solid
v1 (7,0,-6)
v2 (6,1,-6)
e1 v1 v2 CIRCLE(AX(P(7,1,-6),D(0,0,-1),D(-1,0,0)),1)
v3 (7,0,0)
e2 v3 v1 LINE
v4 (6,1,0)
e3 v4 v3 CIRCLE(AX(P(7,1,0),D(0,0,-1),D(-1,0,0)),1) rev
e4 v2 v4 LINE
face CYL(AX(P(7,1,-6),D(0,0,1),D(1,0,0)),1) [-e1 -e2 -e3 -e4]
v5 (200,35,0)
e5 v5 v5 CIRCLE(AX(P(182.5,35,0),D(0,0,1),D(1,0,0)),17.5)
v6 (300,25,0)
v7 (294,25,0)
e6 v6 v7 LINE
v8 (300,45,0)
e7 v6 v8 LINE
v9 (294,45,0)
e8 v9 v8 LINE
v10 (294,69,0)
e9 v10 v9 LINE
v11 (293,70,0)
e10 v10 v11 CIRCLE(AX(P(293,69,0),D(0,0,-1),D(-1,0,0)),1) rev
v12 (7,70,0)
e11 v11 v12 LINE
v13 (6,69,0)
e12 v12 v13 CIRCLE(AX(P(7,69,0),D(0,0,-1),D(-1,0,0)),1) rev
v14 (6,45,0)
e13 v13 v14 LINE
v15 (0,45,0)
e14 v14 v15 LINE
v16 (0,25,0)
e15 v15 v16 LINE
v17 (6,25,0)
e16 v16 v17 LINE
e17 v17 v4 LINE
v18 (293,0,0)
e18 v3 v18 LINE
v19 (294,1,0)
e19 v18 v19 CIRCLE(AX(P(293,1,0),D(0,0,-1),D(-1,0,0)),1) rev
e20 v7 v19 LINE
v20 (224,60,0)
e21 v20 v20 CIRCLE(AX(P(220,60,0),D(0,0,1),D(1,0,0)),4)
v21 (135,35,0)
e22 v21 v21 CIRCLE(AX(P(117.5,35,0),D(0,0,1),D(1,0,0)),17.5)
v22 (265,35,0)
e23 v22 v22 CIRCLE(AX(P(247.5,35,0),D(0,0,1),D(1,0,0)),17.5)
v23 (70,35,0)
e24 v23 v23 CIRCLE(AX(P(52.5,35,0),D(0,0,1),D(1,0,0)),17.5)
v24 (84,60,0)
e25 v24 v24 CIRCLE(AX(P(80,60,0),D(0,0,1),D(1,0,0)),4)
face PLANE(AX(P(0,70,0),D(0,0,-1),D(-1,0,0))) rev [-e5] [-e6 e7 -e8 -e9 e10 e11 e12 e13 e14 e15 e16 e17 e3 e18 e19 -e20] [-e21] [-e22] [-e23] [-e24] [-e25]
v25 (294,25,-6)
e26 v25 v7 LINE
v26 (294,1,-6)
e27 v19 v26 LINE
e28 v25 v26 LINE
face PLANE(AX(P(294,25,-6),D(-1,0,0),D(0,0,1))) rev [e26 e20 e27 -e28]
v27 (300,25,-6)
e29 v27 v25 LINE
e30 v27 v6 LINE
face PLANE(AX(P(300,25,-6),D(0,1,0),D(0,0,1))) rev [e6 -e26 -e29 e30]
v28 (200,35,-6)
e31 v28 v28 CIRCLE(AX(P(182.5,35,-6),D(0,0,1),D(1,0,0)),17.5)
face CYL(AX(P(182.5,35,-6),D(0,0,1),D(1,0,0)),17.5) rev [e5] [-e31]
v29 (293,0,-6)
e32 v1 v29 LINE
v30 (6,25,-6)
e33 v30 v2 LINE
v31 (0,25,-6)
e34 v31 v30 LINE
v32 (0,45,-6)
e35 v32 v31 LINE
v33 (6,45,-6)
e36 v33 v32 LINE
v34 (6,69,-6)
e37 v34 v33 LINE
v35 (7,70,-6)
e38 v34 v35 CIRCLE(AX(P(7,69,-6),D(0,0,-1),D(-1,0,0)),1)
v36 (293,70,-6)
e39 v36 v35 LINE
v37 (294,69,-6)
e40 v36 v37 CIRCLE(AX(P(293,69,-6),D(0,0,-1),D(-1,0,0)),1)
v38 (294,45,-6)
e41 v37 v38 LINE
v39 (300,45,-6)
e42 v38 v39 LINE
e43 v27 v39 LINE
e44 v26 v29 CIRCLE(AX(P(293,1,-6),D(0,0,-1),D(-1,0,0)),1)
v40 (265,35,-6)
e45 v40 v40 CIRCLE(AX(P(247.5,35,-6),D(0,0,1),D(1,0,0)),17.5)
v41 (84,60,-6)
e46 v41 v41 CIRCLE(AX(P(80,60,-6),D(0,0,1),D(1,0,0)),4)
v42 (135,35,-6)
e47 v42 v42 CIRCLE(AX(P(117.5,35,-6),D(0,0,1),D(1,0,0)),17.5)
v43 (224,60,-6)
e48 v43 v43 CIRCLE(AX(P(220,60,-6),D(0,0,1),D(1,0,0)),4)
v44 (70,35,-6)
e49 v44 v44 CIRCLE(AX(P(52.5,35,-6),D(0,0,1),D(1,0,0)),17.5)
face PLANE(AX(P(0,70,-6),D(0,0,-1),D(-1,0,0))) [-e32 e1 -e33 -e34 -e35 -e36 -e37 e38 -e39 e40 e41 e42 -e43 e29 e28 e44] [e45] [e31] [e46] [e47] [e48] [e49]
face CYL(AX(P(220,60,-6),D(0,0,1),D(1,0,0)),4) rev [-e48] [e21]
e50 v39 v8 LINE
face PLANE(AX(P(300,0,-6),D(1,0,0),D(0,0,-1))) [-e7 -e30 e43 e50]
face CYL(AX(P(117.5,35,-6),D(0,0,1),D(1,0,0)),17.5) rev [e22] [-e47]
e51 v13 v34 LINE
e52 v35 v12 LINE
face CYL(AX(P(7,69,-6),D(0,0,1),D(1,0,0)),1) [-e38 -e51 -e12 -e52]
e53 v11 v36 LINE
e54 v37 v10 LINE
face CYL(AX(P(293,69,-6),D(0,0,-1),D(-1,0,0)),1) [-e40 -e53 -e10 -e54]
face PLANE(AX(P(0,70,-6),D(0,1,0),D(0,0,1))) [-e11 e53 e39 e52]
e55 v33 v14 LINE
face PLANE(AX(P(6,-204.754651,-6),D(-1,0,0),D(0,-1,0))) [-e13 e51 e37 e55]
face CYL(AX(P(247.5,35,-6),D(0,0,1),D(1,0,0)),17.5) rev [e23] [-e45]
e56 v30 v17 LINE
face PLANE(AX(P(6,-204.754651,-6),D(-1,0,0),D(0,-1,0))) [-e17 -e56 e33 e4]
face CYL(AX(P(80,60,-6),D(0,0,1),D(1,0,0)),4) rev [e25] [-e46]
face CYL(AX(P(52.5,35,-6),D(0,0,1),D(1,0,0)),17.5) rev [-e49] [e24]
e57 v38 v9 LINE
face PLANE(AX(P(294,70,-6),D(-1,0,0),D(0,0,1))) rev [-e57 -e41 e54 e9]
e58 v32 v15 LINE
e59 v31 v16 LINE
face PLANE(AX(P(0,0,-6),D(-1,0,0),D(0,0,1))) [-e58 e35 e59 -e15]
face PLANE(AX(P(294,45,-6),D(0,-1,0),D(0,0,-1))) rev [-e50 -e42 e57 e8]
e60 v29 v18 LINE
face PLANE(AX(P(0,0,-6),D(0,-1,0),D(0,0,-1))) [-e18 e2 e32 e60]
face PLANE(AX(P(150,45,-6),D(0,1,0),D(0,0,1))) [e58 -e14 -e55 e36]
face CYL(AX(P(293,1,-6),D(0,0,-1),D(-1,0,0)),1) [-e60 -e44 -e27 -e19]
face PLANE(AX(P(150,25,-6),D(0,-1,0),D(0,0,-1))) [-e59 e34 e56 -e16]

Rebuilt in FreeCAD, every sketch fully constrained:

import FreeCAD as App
import Part
import Sketcher
from FreeCAD import Vector
Q = App.Units.Quantity


def edges_at(feature, points):
    """Names of the edges that pass closest to the given points."""
    edges = feature.Shape.Edges
    near = lambda p: min(range(len(edges)), key=lambda i: edges[i].distToShape(Part.Vertex(*p))[0])
    return sorted({f"Edge{near(p) + 1}" for p in points})

doc = App.newDocument("Part")
body = doc.addObject("PartDesign::Body", "Body")

# Sketch on XY plane
sketch1 = doc.addObject("Sketcher::SketchObject", "Sketch")
body.addObject(sketch1)
sketch1.AttachmentSupport = (doc.XY_Plane, [""])
sketch1.MapMode = "FlatFace"
sketch1.addGeometry(Part.LineSegment(Vector(0, 70, 0), Vector(0, 0, 0)), False)
sketch1.addGeometry(Part.LineSegment(Vector(0, 0, 0), Vector(300, 0, 0)), False)
sketch1.addGeometry(Part.LineSegment(Vector(300, 0, 0), Vector(300, 70, 0)), False)
sketch1.addGeometry(Part.LineSegment(Vector(300, 70, 0), Vector(0, 70, 0)), False)
sketch1.addConstraint(Sketcher.Constraint("Coincident", 0, 2, 1, 1))
sketch1.addConstraint(Sketcher.Constraint("Coincident", 1, 2, 2, 1))
sketch1.addConstraint(Sketcher.Constraint("Coincident", 2, 2, 3, 1))
sketch1.addConstraint(Sketcher.Constraint("Coincident", 3, 2, 0, 1))
sketch1.addConstraint(Sketcher.Constraint("Vertical", 0))
sketch1.addConstraint(Sketcher.Constraint("Horizontal", 1))
sketch1.addConstraint(Sketcher.Constraint("Vertical", 2))
sketch1.addConstraint(Sketcher.Constraint("Horizontal", 3))
sketch1.addConstraint(Sketcher.Constraint("Coincident", 0, 2, -1, 1))
sketch1.addConstraint(Sketcher.Constraint("DistanceX", 1, 1, 1, 2, Q("300 mm")))
sketch1.addConstraint(Sketcher.Constraint("DistanceY", 0, 2, 0, 1, Q("70 mm")))
pad1 = doc.addObject("PartDesign::Pad", "Pad")
body.addObject(pad1)
pad1.Profile = sketch1
pad1.Length = 6
pad1.Reversed = True

# Sketch on XY plane
sketch2 = doc.addObject("Sketcher::SketchObject", "Sketch001")
body.addObject(sketch2)
sketch2.AttachmentSupport = (doc.XY_Plane, [""])
sketch2.MapMode = "FlatFace"
sketch2.addGeometry(Part.LineSegment(Vector(0, 70, 0), Vector(0, 45, 0)), False)
sketch2.addGeometry(Part.LineSegment(Vector(0, 45, 0), Vector(6, 45, 0)), False)
sketch2.addGeometry(Part.LineSegment(Vector(6, 45, 0), Vector(6, 70, 0)), False)
sketch2.addGeometry(Part.LineSegment(Vector(6, 70, 0), Vector(0, 70, 0)), False)
sketch2.addGeometry(Part.LineSegment(Vector(0, 25, 0), Vector(0, 0, 0)), False)
sketch2.addGeometry(Part.LineSegment(Vector(0, 0, 0), Vector(6, 0, 0)), False)
sketch2.addGeometry(Part.LineSegment(Vector(6, 0, 0), Vector(6, 25, 0)), False)
sketch2.addGeometry(Part.LineSegment(Vector(6, 25, 0), Vector(0, 25, 0)), False)
sketch2.addGeometry(Part.LineSegment(Vector(294, 70, 0), Vector(294, 45, 0)), False)
sketch2.addGeometry(Part.LineSegment(Vector(294, 45, 0), Vector(300, 45, 0)), False)
sketch2.addGeometry(Part.LineSegment(Vector(300, 45, 0), Vector(300, 70, 0)), False)
sketch2.addGeometry(Part.LineSegment(Vector(300, 70, 0), Vector(294, 70, 0)), False)
sketch2.addGeometry(Part.LineSegment(Vector(294, 25, 0), Vector(294, 0, 0)), False)
sketch2.addGeometry(Part.LineSegment(Vector(294, 0, 0), Vector(300, 0, 0)), False)
sketch2.addGeometry(Part.LineSegment(Vector(300, 0, 0), Vector(300, 25, 0)), False)
sketch2.addGeometry(Part.LineSegment(Vector(300, 25, 0), Vector(294, 25, 0)), False)
sketch2.addGeometry(Part.Circle(Vector(80, 60, 0), Vector(0, 0, 1), 4), False)
sketch2.addGeometry(Part.Circle(Vector(220, 60, 0), Vector(0, 0, 1), 4), False)
sketch2.addConstraint(Sketcher.Constraint("Coincident", 0, 2, 1, 1))
sketch2.addConstraint(Sketcher.Constraint("Coincident", 1, 2, 2, 1))
sketch2.addConstraint(Sketcher.Constraint("Coincident", 2, 2, 3, 1))
sketch2.addConstraint(Sketcher.Constraint("Coincident", 3, 2, 0, 1))
sketch2.addConstraint(Sketcher.Constraint("Coincident", 4, 2, 5, 1))
sketch2.addConstraint(Sketcher.Constraint("Coincident", 5, 2, 6, 1))
sketch2.addConstraint(Sketcher.Constraint("Coincident", 6, 2, 7, 1))
sketch2.addConstraint(Sketcher.Constraint("Coincident", 7, 2, 4, 1))
sketch2.addConstraint(Sketcher.Constraint("Coincident", 8, 2, 9, 1))
sketch2.addConstraint(Sketcher.Constraint("Coincident", 9, 2, 10, 1))
sketch2.addConstraint(Sketcher.Constraint("Coincident", 10, 2, 11, 1))
sketch2.addConstraint(Sketcher.Constraint("Coincident", 11, 2, 8, 1))
sketch2.addConstraint(Sketcher.Constraint("Coincident", 12, 2, 13, 1))
sketch2.addConstraint(Sketcher.Constraint("Coincident", 13, 2, 14, 1))
sketch2.addConstraint(Sketcher.Constraint("Coincident", 14, 2, 15, 1))
sketch2.addConstraint(Sketcher.Constraint("Coincident", 15, 2, 12, 1))
sketch2.addConstraint(Sketcher.Constraint("Vertical", 0))
sketch2.addConstraint(Sketcher.Constraint("Horizontal", 1))
sketch2.addConstraint(Sketcher.Constraint("Vertical", 2))
sketch2.addConstraint(Sketcher.Constraint("Horizontal", 3))
sketch2.addConstraint(Sketcher.Constraint("Vertical", 4))
sketch2.addConstraint(Sketcher.Constraint("Horizontal", 5))
sketch2.addConstraint(Sketcher.Constraint("Vertical", 6))
sketch2.addConstraint(Sketcher.Constraint("Horizontal", 7))
sketch2.addConstraint(Sketcher.Constraint("Vertical", 8))
sketch2.addConstraint(Sketcher.Constraint("Horizontal", 9))
sketch2.addConstraint(Sketcher.Constraint("Vertical", 10))
sketch2.addConstraint(Sketcher.Constraint("Horizontal", 11))
sketch2.addConstraint(Sketcher.Constraint("Vertical", 12))
sketch2.addConstraint(Sketcher.Constraint("Horizontal", 13))
sketch2.addConstraint(Sketcher.Constraint("Vertical", 14))
sketch2.addConstraint(Sketcher.Constraint("Horizontal", 15))
sketch2.addConstraint(Sketcher.Constraint("Coincident", 4, 2, -1, 1))
sketch2.addConstraint(Sketcher.Constraint("Equal", 16, 17))
sketch2.addConstraint(Sketcher.Constraint("PointOnObject", 0, 2, -2))
sketch2.addConstraint(Sketcher.Constraint("PointOnObject", 12, 2, -1))
sketch2.addConstraint(Sketcher.Constraint("Horizontal", 16, 3, 17, 3))
sketch2.addConstraint(Sketcher.Constraint("Horizontal", 1, 2, 8, 2))
sketch2.addConstraint(Sketcher.Constraint("Horizontal", 3, 2, 10, 2))
sketch2.addConstraint(Sketcher.Constraint("Horizontal", 7, 2, 14, 2))
sketch2.addConstraint(Sketcher.Constraint("Vertical", 2, 2, 5, 2))
sketch2.addConstraint(Sketcher.Constraint("Vertical", 11, 2, 12, 2))
sketch2.addConstraint(Sketcher.Constraint("Vertical", 10, 2, 13, 2))
sketch2.addConstraint(Sketcher.Constraint("Equal", 7, 9))
sketch2.addConstraint(Sketcher.Constraint("Equal", 2, 4))
sketch2.addConstraint(Sketcher.Constraint("Diameter", 16, Q("8 mm")))
sketch2.addConstraint(Sketcher.Constraint("DistanceX", 1, 1, 1, 2, Q("6 mm")))
sketch2.addConstraint(Sketcher.Constraint("DistanceY", 0, 2, 0, 1, Q("25 mm")))
sketch2.addConstraint(Sketcher.Constraint("DistanceX", -1, 1, 16, 3, Q("80 mm")))
sketch2.addConstraint(Sketcher.Constraint("DistanceY", -1, 1, 16, 3, Q("60 mm")))
sketch2.addConstraint(Sketcher.Constraint("DistanceX", -1, 1, 17, 3, Q("220 mm")))
sketch2.addConstraint(Sketcher.Constraint("DistanceY", -1, 1, 0, 2, Q("45 mm")))
sketch2.addConstraint(Sketcher.Constraint("DistanceX", -1, 1, 8, 2, Q("294 mm")))
pocket1 = doc.addObject("PartDesign::Pocket", "Pocket")
body.addObject(pocket1)
pocket1.Profile = sketch2
pocket1.Type = "ThroughAll"
doc.recompute()

fillet = doc.addObject("PartDesign::Fillet", "Fillet")
body.addObject(fillet)
fillet.Base = (pocket1, edges_at(pocket1, [
    (6, 70, -3),
    (6, 0, -3),
    (294, 70, -3),
    (294, 0, -3),
]))
fillet.Radius = 1

# Sketch on XY plane
sketch3 = doc.addObject("Sketcher::SketchObject", "Sketch002")
body.addObject(sketch3)
sketch3.AttachmentSupport = (doc.XY_Plane, [""])
sketch3.MapMode = "FlatFace"
sketch3.addGeometry(Part.Circle(Vector(52, 35, 0), Vector(0, 0, 1), 18), False)
sketch3.addGeometry(Part.Circle(Vector(118, 35, 0), Vector(0, 0, 1), 18), False)
sketch3.addGeometry(Part.Circle(Vector(182, 35, 0), Vector(0, 0, 1), 18), False)
sketch3.addGeometry(Part.Circle(Vector(248, 35, 0), Vector(0, 0, 1), 18), False)
sketch3.addConstraint(Sketcher.Constraint("Equal", 0, 1))
sketch3.addConstraint(Sketcher.Constraint("Equal", 1, 2))
sketch3.addConstraint(Sketcher.Constraint("Equal", 2, 3))
sketch3.addConstraint(Sketcher.Constraint("Horizontal", 0, 3, 1, 3))
sketch3.addConstraint(Sketcher.Constraint("Horizontal", 1, 3, 2, 3))
sketch3.addConstraint(Sketcher.Constraint("Horizontal", 2, 3, 3, 3))
sketch3.addConstraint(Sketcher.Constraint("Diameter", 0, Q("35 mm")))
sketch3.addConstraint(Sketcher.Constraint("DistanceY", -1, 1, 0, 3, Q("35 mm")))
sketch3.addConstraint(Sketcher.Constraint("DistanceX", 0, 3, 1, 3, Q("65 mm")))
sketch3.addConstraint(Sketcher.Constraint("DistanceX", 1, 3, 2, 3, Q("65 mm")))
sketch3.addConstraint(Sketcher.Constraint("DistanceX", 2, 3, 3, 3, Q("65 mm")))
sketch3.addConstraint(Sketcher.Constraint("DistanceX", -1, 1, 0, 3, Q("52.5 mm")))
pocket2 = doc.addObject("PartDesign::Pocket", "Pocket001")
body.addObject(pocket2)
pocket2.Profile = sketch3
pocket2.Type = "ThroughAll"

doc.recompute()
